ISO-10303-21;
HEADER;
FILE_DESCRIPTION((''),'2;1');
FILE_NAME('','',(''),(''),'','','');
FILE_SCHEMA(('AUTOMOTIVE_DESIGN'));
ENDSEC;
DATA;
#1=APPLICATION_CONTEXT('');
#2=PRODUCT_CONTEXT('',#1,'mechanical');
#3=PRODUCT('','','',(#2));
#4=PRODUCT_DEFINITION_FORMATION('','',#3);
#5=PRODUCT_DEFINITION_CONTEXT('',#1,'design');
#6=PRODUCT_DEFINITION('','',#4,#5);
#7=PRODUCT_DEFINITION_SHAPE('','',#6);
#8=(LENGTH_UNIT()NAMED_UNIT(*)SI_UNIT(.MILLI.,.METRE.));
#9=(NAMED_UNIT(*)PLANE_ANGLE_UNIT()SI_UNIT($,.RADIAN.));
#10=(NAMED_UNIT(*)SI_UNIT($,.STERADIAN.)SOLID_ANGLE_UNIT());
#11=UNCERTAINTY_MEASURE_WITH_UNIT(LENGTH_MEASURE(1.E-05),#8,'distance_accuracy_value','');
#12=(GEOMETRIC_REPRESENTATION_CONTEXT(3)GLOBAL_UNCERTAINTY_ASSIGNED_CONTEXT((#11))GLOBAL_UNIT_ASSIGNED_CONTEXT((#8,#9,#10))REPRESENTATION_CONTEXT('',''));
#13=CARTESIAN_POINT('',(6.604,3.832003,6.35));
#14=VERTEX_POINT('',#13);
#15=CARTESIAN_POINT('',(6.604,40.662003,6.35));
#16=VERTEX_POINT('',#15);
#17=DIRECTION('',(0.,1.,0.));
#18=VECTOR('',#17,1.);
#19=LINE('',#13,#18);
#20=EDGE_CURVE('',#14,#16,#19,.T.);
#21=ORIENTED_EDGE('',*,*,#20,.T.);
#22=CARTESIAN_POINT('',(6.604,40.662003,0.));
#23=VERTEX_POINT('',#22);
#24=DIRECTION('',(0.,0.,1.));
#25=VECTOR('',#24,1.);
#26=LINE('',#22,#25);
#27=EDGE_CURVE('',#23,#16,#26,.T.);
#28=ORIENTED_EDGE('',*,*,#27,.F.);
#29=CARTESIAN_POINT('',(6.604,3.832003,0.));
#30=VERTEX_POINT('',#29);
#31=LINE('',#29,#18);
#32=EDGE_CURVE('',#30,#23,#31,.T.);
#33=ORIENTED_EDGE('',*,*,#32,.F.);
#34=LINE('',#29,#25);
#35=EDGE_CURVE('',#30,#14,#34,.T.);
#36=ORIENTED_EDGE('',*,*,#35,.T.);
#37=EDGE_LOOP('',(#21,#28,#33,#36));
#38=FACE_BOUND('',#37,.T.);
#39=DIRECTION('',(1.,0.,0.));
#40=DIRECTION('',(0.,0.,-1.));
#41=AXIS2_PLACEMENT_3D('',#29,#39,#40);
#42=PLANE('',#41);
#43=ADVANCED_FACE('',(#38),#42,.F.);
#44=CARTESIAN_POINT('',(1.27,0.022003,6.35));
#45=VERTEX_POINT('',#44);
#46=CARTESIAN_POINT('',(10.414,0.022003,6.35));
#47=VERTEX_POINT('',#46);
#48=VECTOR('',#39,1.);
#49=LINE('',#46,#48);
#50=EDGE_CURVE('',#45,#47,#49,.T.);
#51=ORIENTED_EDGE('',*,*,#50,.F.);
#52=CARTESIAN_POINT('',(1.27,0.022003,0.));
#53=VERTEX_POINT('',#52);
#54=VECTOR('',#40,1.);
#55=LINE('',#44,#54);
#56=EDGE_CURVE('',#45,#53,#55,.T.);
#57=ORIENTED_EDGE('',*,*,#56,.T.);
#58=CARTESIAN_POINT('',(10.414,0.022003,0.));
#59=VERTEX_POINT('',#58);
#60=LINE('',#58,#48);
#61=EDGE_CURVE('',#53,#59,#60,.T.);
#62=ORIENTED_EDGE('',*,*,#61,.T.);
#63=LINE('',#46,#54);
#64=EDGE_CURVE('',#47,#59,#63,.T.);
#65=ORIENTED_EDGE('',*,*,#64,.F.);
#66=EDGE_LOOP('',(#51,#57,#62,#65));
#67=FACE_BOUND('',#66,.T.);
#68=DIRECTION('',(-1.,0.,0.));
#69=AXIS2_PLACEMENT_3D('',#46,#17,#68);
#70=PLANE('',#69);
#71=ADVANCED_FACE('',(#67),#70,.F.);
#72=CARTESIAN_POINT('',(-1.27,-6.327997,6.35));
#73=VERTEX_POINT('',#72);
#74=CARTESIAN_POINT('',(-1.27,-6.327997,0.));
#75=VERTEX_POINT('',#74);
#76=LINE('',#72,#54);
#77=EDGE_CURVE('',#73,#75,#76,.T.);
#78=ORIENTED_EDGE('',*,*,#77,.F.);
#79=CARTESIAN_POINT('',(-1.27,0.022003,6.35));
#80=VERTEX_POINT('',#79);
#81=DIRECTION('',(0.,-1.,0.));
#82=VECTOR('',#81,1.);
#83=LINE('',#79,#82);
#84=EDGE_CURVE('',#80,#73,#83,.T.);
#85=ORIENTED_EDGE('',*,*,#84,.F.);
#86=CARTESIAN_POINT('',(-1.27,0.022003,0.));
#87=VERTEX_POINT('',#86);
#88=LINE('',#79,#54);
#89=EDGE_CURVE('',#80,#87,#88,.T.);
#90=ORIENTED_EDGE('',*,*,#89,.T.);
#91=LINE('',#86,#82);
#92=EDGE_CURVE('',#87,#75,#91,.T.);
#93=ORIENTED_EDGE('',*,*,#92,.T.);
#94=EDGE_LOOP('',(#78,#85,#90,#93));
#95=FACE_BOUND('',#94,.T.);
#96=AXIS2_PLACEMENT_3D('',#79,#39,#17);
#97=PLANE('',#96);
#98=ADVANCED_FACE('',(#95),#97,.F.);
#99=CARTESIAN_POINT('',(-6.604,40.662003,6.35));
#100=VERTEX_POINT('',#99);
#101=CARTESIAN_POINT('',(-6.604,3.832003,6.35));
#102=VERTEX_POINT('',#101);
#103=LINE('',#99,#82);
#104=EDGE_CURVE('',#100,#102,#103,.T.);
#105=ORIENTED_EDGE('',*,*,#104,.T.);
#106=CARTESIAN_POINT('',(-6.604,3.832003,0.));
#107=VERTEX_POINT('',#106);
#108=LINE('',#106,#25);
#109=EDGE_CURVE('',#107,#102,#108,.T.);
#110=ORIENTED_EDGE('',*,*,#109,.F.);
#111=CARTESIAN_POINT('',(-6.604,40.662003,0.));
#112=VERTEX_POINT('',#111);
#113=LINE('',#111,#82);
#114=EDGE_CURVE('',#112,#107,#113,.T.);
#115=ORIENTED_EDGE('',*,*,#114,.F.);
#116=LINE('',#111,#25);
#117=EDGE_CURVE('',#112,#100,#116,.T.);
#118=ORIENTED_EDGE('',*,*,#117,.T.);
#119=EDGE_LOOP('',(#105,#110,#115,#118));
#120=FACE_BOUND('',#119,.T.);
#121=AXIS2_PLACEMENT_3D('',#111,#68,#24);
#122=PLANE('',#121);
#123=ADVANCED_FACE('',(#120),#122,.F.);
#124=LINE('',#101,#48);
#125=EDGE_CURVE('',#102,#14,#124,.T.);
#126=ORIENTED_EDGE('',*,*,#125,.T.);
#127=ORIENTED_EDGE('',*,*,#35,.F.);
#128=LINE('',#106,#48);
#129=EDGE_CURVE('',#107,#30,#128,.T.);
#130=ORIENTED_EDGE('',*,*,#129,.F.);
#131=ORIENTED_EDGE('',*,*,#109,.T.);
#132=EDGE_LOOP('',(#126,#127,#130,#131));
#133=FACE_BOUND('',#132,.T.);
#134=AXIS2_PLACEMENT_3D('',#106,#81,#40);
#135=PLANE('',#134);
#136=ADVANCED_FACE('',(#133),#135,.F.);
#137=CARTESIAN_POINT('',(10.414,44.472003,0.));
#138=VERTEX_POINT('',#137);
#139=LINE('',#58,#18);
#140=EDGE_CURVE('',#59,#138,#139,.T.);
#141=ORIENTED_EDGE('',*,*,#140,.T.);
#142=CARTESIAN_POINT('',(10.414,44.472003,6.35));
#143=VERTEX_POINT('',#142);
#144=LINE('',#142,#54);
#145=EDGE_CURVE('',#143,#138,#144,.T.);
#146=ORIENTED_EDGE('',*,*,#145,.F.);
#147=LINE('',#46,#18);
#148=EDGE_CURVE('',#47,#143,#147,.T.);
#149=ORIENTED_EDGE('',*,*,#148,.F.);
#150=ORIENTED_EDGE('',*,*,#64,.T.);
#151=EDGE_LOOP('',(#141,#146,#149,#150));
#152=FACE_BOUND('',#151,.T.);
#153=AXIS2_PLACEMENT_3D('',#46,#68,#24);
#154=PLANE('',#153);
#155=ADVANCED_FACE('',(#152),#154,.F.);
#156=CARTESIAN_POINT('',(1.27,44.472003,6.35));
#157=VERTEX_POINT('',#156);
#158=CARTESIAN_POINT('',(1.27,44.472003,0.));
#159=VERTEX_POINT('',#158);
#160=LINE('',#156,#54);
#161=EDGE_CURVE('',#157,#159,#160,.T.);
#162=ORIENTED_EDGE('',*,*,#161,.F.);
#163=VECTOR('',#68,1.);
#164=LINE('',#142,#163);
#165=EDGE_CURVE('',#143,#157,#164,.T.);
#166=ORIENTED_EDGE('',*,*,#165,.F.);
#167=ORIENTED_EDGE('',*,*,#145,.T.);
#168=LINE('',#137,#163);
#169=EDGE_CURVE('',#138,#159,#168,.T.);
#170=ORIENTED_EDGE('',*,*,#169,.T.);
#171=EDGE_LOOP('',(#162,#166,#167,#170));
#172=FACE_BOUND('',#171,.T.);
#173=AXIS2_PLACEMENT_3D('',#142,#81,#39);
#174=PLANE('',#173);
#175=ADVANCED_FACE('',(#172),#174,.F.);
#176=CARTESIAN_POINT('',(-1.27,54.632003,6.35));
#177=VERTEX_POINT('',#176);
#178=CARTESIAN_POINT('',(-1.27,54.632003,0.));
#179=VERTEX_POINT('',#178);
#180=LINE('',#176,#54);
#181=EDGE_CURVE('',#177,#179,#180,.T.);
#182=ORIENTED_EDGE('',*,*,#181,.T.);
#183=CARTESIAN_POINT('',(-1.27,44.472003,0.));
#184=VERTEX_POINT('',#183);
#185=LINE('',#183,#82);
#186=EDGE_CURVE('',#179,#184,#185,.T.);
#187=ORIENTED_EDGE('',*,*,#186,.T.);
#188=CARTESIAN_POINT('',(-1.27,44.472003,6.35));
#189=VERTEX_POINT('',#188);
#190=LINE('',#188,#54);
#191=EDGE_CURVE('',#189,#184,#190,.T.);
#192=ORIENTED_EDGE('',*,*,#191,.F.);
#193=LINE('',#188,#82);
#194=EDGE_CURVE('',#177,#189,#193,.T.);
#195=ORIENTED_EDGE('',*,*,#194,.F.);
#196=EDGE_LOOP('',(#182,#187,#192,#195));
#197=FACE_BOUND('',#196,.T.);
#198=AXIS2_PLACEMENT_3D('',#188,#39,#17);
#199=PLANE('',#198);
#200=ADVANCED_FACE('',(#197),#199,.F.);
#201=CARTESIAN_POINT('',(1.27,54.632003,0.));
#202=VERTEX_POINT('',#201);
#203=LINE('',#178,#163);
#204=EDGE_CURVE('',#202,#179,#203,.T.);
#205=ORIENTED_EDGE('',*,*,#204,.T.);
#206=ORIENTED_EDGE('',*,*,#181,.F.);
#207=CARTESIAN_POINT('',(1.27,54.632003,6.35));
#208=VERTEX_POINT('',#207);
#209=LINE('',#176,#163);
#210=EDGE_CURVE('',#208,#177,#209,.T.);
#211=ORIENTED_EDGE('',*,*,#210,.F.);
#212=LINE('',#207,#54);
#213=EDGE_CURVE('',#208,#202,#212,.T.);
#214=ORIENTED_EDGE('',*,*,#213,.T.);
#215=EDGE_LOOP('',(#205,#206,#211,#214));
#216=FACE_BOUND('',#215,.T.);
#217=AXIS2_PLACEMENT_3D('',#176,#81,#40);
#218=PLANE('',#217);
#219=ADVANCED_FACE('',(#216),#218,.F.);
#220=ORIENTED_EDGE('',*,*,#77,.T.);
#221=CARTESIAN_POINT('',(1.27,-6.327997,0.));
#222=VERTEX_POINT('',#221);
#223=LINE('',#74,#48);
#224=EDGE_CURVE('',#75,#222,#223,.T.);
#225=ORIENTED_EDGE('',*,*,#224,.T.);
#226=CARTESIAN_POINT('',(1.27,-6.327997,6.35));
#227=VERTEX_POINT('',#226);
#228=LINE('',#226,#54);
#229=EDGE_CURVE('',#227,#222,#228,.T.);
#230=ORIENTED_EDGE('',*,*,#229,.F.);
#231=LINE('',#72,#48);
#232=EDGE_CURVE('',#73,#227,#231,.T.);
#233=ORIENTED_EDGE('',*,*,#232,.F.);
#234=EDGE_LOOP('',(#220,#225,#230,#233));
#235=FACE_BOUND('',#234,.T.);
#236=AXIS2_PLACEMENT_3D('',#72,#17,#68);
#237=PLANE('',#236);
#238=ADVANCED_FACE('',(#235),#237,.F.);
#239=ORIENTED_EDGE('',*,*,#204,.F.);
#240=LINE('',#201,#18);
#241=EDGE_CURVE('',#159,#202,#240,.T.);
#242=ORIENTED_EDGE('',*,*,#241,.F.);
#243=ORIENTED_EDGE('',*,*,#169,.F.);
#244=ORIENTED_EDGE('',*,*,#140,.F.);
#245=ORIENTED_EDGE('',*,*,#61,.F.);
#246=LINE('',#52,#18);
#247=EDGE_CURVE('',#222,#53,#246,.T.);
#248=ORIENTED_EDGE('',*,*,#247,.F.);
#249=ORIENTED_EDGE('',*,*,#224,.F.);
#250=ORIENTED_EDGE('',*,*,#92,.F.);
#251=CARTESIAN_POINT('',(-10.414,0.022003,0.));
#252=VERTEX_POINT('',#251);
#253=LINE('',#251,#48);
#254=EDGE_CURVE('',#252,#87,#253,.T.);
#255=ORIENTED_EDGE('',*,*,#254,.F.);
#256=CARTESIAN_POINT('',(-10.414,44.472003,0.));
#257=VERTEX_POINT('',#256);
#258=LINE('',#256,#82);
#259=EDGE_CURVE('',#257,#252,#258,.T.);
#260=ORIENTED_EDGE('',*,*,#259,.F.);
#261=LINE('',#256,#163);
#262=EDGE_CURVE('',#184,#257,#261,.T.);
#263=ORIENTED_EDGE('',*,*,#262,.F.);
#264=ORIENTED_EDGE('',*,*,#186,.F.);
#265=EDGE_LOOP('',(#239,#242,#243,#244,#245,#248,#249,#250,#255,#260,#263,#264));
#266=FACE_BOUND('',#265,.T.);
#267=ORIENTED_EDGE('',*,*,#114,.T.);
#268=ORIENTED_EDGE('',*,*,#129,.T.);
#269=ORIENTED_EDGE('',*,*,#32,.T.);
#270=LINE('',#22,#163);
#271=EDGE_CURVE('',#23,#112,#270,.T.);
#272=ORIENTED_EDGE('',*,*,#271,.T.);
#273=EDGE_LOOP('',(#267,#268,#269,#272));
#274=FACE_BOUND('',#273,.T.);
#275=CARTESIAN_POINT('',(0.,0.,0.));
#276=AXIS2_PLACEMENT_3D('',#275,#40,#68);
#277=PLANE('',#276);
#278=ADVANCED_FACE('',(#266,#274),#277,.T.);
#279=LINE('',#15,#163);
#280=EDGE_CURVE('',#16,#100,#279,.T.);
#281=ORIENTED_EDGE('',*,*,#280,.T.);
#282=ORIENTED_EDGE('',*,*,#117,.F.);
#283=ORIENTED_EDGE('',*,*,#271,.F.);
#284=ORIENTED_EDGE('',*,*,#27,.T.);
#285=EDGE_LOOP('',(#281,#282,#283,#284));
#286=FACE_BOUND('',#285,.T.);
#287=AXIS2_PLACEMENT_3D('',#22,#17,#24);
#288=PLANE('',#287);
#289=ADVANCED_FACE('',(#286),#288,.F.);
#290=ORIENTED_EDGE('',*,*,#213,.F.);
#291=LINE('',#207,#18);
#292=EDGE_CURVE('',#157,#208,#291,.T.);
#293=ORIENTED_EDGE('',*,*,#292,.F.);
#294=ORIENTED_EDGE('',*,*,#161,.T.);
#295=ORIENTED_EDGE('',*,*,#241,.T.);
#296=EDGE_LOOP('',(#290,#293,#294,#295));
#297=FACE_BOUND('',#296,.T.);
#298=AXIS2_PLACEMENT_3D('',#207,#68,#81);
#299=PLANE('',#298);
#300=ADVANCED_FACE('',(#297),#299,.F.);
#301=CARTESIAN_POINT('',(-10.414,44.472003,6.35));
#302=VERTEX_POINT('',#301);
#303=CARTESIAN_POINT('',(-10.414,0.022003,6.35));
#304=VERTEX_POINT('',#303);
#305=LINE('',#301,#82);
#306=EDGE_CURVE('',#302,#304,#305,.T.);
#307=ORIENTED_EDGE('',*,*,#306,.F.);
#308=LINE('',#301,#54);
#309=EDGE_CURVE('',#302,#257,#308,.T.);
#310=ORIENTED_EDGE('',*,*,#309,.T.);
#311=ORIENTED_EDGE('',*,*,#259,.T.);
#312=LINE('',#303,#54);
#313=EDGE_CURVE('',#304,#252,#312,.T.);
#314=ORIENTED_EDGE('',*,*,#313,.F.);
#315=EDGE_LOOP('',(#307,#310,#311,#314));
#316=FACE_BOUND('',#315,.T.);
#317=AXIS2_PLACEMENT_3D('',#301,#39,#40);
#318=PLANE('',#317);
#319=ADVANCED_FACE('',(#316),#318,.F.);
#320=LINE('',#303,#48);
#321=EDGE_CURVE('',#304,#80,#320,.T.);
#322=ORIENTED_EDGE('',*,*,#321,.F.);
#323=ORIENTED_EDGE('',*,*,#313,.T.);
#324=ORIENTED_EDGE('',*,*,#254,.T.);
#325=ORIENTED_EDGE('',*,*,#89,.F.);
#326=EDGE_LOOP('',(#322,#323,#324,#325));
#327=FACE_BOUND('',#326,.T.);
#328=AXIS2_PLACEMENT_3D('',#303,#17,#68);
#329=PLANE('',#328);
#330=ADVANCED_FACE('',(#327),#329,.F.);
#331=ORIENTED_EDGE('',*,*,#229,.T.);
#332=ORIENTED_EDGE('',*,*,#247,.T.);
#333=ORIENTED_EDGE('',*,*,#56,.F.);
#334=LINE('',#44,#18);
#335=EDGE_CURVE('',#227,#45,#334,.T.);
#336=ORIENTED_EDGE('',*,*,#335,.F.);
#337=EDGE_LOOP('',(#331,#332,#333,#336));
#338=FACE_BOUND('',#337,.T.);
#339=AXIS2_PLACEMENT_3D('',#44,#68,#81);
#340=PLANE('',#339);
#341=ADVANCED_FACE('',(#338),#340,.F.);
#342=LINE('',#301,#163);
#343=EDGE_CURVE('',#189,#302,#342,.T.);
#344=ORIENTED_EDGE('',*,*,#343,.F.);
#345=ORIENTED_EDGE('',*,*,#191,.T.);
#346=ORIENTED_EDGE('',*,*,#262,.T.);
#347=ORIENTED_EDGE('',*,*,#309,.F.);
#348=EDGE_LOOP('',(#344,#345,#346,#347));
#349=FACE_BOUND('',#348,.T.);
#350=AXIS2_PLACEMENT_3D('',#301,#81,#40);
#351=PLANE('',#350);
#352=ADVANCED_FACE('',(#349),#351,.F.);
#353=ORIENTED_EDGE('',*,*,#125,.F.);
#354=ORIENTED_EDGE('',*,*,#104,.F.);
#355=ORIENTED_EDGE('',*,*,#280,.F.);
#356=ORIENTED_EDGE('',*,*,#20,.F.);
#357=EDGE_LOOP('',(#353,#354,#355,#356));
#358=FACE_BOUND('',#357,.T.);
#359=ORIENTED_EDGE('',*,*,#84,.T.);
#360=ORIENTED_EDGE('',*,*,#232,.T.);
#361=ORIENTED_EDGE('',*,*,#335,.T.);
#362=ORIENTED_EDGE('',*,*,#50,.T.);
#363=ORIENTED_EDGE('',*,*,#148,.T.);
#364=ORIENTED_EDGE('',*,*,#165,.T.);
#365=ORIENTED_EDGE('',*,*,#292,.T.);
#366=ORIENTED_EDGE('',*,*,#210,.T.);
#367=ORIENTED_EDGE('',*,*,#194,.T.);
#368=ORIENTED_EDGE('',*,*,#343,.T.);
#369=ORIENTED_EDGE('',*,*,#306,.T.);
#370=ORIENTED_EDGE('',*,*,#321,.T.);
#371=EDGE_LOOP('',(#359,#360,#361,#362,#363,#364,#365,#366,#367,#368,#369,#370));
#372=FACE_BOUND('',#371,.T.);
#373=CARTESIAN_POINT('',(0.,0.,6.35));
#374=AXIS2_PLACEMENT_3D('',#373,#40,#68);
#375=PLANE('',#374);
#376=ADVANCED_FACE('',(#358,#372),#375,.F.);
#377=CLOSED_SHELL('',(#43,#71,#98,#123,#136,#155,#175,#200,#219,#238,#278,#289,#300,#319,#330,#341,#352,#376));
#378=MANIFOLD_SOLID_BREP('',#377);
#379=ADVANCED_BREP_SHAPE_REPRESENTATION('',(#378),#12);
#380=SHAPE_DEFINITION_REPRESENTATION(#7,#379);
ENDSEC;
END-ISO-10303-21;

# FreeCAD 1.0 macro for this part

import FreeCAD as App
import Part
import Sketcher
from FreeCAD import Vector
Q = App.Units.Quantity


def add_polygon(sketch, points):
    """Adds a closed chain of lines whose ends are joined by coincident constraints."""
    first, n = sketch.GeometryCount, len(points)
    for a, b in zip(points, points[1:] + points[:1]):
        sketch.addGeometry(Part.LineSegment(App.Vector(*a, 0), App.Vector(*b, 0)), False)
    for i in range(n):
        sketch.addConstraint(Sketcher.Constraint("Coincident", first + i, 2, first + (i + 1) % n, 1))

doc = App.newDocument("Part")
params = doc.addObject("Spreadsheet::Sheet", "Params")
for row, (alias, value) in enumerate([
    ("sketch1_width", "0.1 in"),
    ("sketch1_height", "0.4 in"),
    ("sketch1_width2", "0.36 in"),
    ("sketch1_height2", "1.75 in"),
    ("pad1_length", "0.25 in"),
    ("sketch2_width", "0.52 in"),
    ("sketch2_height", "1.45 in"),
    ("pocket1_length", "0.25 in"),
], start=1):
    params.set(f"A{row}", alias)
    params.set(f"B{row}", "=" + value)
    params.setAlias(f"B{row}", alias)

body = doc.addObject("PartDesign::Body", "Body")

sketch1 = body.newObject("Sketcher::SketchObject", "Sketch")
sketch1.AttachmentSupport = (doc.getObject("XY_Plane"), [""])
sketch1.MapMode = "FlatFace"
add_polygon(sketch1, [(10.414, 0.022003), (10.414, 44.472003), (1.27, 44.472003), (1.27, 54.632003), (-1.27, 54.632003), (-1.27, 44.472003), (-10.414, 44.472003), (-10.414, 0.022003), (-1.27, 0.022003), (-1.27, -6.327997), (1.27, -6.327997), (1.27, 0.022003)])
sketch1.addConstraint([
    Sketcher.Constraint("Vertical", 0),
    Sketcher.Constraint("Horizontal", 1),
    Sketcher.Constraint("Vertical", 2),
    Sketcher.Constraint("Horizontal", 3),
    Sketcher.Constraint("Vertical", 4),
    Sketcher.Constraint("Horizontal", 5),
    Sketcher.Constraint("Vertical", 6),
    Sketcher.Constraint("Horizontal", 7),
    Sketcher.Constraint("Vertical", 8),
    Sketcher.Constraint("Horizontal", 9),
    Sketcher.Constraint("Vertical", 10),
    Sketcher.Constraint("Horizontal", 11),
    Sketcher.Constraint("Symmetric", 1, 2, 4, 2, -2),
    Sketcher.Constraint("Symmetric", 7, 2, 10, 2, -2),
    Sketcher.Constraint("Vertical", 4, 2, 7, 2),
    Sketcher.Constraint("Equal", 1, 5),
    Sketcher.Constraint("DistanceX", 3, 2, 3, 1, Q("0.1 in")),
    Sketcher.Constraint("DistanceY", 2, 1, 2, 2, Q("0.4 in")),
    Sketcher.Constraint("DistanceY", 8, 2, 4, 2, Q("2 in")),
    Sketcher.Constraint("DistanceX", 1, 2, 1, 1, Q("0.36 in")),
    Sketcher.Constraint("DistanceY", 0, 1, 0, 2, Q("1.75 in")),
    Sketcher.Constraint("DistanceY", -1, 1, 0, 2, Q("44.472003 mm")),
])
sketch1.setExpression("Constraints[28]", "Params.sketch1_width")
sketch1.setExpression("Constraints[29]", "Params.sketch1_height")
sketch1.setExpression("Constraints[31]", "Params.sketch1_width2")
sketch1.setExpression("Constraints[32]", "Params.sketch1_height2")
pad1 = body.newObject("PartDesign::Pad", "Pad")
pad1.Profile = sketch1
pad1.setExpression("Length", "Params.pad1_length")

sketch2 = body.newObject("Sketcher::SketchObject", "Sketch001")
sketch2.AttachmentSupport = (doc.getObject("XY_Plane"), [""])
sketch2.MapMode = "FlatFace"
sketch2.AttachmentOffset = App.Placement(Vector(0, 0, 0.25 * 25.4), App.Rotation())
add_polygon(sketch2, [(-6.604, 40.662003), (-6.604, 3.832003), (6.604, 3.832003), (6.604, 40.662003)])
sketch2.addConstraint([
    Sketcher.Constraint("Vertical", 0),
    Sketcher.Constraint("Horizontal", 1),
    Sketcher.Constraint("Vertical", 2),
    Sketcher.Constraint("Horizontal", 3),
    Sketcher.Constraint("DistanceX", 1, 1, 1, 2, Q("0.52 in")),
    Sketcher.Constraint("DistanceY", 0, 2, 0, 1, Q("1.45 in")),
    Sketcher.Constraint("DistanceX", 0, 2, -1, 1, Q("0.26 in")),
    Sketcher.Constraint("DistanceY", -1, 1, 0, 2, Q("3.832003 mm")),
])
sketch2.setExpression("Constraints[8]", "Params.sketch2_width")
sketch2.setExpression("Constraints[9]", "Params.sketch2_height")
pocket1 = body.newObject("PartDesign::Pocket", "Pocket")
pocket1.Profile = sketch2
pocket1.setExpression("Length", "Params.pocket1_length")

doc.recompute()
